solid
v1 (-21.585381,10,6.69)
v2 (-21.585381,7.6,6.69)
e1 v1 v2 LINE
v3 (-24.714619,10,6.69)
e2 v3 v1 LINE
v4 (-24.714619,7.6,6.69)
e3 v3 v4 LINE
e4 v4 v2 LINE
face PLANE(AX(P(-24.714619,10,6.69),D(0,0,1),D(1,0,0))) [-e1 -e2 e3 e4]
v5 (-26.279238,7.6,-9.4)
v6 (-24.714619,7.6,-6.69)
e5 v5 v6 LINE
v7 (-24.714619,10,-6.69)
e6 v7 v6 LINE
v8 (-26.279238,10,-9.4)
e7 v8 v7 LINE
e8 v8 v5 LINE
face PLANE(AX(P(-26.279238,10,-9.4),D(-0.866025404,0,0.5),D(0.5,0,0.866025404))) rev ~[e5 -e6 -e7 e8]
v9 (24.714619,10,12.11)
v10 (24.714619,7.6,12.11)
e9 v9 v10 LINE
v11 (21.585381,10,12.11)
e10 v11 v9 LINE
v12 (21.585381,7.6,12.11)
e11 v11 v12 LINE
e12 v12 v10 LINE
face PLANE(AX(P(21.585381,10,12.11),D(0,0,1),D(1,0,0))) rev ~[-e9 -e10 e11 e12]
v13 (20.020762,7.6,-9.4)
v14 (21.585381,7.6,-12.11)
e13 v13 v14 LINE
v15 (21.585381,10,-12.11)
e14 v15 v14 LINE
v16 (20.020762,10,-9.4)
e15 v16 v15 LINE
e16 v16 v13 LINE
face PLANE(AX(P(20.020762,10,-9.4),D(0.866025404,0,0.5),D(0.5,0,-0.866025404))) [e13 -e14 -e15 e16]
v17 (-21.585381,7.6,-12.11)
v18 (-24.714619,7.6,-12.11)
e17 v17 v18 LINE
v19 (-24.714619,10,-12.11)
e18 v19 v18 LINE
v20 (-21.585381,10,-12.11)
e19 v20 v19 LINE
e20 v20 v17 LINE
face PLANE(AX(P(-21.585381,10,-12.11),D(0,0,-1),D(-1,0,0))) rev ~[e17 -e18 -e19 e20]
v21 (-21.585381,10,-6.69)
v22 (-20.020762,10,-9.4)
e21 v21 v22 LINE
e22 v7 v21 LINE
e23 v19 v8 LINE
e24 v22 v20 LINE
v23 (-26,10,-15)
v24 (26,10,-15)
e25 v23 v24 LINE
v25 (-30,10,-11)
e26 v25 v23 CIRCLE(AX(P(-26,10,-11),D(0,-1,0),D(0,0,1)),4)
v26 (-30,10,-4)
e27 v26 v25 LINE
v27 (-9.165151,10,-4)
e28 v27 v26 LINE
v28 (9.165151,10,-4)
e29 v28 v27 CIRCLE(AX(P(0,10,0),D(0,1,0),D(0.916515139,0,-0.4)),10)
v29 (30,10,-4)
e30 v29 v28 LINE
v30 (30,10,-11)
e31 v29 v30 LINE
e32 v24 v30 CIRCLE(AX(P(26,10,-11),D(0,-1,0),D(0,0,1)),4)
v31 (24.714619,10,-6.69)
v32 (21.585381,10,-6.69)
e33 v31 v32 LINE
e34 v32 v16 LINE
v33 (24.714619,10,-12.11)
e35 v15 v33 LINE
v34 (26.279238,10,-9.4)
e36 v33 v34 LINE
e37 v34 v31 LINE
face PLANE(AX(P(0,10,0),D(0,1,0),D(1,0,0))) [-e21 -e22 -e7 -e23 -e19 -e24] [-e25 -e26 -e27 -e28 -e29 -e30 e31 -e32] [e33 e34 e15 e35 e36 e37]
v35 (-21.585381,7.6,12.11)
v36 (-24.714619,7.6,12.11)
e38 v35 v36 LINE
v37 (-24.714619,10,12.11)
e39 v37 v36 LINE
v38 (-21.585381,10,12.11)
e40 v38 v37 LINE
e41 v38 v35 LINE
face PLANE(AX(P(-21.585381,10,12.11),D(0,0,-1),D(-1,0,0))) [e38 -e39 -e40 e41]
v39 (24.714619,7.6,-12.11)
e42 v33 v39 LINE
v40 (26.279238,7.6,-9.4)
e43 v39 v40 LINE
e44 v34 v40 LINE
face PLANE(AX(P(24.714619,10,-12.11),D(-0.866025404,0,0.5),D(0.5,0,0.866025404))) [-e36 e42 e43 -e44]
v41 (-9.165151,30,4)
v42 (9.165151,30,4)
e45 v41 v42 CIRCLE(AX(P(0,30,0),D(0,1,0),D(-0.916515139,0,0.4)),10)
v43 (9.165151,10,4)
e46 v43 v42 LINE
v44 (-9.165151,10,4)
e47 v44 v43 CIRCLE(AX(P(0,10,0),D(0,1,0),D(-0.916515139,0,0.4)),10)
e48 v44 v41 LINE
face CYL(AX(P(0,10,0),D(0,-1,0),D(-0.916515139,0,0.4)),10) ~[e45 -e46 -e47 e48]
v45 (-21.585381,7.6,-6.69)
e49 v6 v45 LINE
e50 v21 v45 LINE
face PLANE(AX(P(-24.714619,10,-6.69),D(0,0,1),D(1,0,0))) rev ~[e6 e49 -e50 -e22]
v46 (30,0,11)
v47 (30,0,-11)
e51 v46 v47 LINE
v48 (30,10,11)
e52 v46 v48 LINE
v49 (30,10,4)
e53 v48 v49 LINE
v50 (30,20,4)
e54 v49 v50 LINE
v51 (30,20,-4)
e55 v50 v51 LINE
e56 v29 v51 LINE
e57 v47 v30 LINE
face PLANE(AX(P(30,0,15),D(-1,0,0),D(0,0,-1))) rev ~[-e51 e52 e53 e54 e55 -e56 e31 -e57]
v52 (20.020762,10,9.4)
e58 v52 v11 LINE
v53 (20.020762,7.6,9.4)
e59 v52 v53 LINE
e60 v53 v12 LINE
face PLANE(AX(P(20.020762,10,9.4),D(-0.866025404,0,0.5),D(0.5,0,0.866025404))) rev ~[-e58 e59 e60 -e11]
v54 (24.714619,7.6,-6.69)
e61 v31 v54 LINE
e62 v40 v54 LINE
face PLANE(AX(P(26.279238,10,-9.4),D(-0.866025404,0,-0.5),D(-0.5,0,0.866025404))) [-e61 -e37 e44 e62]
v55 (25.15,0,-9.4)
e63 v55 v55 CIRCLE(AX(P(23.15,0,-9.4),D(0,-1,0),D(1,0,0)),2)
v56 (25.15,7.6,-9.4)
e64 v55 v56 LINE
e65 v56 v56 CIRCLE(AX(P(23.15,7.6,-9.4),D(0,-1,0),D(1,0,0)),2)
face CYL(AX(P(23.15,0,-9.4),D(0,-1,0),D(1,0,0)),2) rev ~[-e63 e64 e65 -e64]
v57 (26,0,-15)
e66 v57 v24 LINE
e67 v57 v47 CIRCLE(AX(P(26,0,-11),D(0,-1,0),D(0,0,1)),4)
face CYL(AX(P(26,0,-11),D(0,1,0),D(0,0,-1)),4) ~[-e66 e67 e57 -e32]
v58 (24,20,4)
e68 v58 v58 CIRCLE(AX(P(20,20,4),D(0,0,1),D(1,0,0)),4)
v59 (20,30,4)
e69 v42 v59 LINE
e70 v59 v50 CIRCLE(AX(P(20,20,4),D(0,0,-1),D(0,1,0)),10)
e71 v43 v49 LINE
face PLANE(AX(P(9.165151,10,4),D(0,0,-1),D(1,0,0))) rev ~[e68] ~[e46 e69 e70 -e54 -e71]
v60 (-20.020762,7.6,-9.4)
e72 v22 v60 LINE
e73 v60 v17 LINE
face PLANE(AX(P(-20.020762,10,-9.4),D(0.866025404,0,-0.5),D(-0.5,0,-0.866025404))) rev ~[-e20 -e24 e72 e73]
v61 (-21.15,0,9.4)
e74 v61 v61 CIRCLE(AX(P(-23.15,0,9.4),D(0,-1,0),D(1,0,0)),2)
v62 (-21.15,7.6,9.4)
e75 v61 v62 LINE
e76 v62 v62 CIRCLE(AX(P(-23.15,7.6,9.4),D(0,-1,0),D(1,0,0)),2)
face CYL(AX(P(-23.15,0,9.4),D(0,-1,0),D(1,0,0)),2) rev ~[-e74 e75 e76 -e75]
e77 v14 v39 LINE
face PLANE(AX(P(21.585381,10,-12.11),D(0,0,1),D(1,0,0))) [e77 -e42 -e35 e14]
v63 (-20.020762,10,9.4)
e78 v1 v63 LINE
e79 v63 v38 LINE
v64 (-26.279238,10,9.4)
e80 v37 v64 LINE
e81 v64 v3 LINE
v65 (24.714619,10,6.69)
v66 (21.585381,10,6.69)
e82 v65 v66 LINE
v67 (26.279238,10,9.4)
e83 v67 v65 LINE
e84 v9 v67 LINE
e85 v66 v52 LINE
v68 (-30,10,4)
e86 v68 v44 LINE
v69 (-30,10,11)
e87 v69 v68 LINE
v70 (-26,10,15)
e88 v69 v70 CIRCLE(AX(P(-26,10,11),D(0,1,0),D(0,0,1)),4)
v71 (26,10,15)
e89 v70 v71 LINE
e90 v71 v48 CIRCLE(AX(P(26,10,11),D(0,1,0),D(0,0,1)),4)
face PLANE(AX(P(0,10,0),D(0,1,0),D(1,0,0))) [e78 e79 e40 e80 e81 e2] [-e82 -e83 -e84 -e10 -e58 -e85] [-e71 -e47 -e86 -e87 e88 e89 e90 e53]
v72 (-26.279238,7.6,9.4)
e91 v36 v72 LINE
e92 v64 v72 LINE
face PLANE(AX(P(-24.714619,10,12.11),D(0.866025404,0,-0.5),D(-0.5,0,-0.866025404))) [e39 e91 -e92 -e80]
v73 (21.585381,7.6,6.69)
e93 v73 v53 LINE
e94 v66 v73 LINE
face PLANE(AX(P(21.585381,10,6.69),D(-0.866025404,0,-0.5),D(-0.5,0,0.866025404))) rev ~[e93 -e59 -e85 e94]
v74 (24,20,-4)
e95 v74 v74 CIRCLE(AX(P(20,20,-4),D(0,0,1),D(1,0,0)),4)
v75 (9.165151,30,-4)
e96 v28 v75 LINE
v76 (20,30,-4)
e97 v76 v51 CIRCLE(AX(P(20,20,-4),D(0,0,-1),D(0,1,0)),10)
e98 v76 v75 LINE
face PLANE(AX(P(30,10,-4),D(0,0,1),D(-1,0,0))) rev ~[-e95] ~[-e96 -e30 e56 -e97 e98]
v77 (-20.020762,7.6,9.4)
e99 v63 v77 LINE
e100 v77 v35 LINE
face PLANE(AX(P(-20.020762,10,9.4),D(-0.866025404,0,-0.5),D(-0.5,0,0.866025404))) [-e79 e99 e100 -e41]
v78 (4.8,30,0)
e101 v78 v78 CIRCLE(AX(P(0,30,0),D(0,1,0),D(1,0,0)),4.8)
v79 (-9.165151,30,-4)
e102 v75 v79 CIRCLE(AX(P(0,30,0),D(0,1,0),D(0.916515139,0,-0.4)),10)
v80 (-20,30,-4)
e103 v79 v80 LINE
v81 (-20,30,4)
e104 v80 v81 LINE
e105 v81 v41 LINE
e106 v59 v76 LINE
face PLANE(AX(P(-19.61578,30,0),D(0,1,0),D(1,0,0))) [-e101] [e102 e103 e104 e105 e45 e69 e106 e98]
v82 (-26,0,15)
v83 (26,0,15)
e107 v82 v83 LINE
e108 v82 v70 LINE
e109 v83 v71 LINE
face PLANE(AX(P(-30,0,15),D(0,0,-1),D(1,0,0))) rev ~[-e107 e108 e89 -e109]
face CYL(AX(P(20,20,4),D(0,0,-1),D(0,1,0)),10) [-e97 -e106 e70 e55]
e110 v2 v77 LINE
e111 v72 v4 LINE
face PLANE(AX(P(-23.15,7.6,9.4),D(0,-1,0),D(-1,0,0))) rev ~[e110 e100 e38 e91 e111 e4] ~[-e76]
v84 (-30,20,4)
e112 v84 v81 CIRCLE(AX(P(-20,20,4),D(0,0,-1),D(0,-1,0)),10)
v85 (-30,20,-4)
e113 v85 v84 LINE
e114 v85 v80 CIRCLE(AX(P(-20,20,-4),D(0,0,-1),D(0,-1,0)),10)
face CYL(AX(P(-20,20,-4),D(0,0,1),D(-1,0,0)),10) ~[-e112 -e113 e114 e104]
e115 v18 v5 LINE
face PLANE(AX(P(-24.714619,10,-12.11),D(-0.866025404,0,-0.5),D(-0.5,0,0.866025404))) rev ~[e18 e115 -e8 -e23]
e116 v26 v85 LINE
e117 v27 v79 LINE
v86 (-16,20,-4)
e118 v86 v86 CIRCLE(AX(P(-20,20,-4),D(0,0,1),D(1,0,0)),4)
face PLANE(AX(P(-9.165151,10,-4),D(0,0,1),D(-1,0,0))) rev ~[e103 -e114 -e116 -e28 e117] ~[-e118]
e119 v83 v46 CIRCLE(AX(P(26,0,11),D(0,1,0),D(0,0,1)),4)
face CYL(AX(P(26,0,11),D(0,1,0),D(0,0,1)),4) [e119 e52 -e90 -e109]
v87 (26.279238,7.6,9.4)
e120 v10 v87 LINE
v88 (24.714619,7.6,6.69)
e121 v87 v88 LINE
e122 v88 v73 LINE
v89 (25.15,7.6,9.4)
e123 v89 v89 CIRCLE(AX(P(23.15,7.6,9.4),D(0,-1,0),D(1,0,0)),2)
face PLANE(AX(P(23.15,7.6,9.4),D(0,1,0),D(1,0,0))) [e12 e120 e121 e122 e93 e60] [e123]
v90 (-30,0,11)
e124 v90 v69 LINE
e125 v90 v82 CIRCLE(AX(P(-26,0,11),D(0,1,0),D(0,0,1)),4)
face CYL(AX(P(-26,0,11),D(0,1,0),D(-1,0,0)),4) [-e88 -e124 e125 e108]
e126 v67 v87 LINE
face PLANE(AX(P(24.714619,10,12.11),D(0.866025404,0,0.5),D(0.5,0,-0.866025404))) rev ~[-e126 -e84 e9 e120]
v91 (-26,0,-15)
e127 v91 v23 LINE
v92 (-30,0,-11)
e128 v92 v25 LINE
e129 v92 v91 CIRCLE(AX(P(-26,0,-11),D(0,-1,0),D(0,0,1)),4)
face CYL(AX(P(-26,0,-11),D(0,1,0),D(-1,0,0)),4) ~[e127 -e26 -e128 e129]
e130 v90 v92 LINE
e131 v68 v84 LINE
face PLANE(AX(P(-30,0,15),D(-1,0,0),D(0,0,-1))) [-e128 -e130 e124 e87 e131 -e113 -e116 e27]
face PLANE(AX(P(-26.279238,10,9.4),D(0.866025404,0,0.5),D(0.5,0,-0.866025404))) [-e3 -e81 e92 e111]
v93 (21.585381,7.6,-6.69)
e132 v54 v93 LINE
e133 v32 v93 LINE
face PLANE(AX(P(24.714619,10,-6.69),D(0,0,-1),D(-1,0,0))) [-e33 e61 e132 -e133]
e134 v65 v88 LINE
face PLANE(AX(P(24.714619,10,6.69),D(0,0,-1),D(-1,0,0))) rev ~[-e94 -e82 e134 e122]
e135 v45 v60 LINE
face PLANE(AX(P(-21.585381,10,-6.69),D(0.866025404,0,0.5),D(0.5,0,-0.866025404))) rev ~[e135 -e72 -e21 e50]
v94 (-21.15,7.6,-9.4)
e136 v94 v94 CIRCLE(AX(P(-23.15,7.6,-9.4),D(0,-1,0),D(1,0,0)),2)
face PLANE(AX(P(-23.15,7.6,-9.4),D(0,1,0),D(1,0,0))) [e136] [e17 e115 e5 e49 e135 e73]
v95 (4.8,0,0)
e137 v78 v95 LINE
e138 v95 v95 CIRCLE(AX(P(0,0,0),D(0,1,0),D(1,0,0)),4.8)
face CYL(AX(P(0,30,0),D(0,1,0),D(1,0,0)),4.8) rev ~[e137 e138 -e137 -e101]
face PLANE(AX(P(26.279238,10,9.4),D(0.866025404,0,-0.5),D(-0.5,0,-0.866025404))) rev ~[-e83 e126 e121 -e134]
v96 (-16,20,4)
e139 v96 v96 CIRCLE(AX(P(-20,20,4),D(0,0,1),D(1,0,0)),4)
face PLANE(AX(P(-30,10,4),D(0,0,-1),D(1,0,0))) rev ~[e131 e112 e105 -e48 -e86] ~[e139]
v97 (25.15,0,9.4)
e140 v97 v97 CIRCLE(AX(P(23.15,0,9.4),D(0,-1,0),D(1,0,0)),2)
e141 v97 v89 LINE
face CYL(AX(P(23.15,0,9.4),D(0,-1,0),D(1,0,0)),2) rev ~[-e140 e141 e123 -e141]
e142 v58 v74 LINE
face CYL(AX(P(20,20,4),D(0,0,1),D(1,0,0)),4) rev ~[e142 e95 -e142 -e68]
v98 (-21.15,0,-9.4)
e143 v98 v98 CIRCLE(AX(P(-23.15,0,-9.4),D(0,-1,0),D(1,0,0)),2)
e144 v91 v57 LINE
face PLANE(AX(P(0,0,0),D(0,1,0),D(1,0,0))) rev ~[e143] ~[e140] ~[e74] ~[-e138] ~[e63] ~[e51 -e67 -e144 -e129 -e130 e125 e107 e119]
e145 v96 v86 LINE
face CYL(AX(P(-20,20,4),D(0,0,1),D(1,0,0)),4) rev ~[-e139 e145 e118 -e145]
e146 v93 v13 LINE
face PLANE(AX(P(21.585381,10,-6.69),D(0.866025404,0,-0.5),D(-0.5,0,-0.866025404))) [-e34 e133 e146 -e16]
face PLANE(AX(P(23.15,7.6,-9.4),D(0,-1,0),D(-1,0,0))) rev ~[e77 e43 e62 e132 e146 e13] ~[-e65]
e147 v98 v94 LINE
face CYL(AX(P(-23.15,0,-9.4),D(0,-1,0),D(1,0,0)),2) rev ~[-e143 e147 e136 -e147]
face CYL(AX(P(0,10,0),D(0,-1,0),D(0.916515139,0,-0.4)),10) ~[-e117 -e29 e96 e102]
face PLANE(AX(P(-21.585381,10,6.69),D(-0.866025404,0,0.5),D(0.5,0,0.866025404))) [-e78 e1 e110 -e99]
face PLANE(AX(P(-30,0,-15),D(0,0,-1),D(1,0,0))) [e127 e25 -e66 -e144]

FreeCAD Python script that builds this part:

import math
import FreeCAD as App
import Part
import Sketcher
from FreeCAD import Vector
Q = App.Units.Quantity


def edges_at(feature, points):
    """Names of the edges that pass closest to the given points."""
    edges = feature.Shape.Edges
    near = lambda p: min(range(len(edges)), key=lambda i: edges[i].distToShape(Part.Vertex(*p))[0])
    return sorted({f"Edge{near(p) + 1}" for p in points})


def add_polygon(sketch, points):
    """Adds a closed chain of lines whose ends are joined by coincident constraints."""
    first, n = sketch.GeometryCount, len(points)
    for a, b in zip(points, points[1:] + points[:1]):
        sketch.addGeometry(Part.LineSegment(App.Vector(*a, 0), App.Vector(*b, 0)), False)
    for i in range(n):
        sketch.addConstraint(Sketcher.Constraint("Coincident", first + i, 2, first + (i + 1) % n, 1))

doc = App.newDocument("Part")
body = doc.addObject("PartDesign::Body", "Body")

# Sketch on XZ plane
sketch1 = body.newObject("Sketcher::SketchObject", "Sketch")
sketch1.AttachmentSupport = (doc.getObject("XZ_Plane"), [""])
sketch1.MapMode = "FlatFace"
add_polygon(sketch1, [(-30, -15), (-30, 15), (30, 15), (30, -15)])  # lines 0-3
sketch1.addConstraint([
    Sketcher.Constraint("Vertical", 0),
    Sketcher.Constraint("Horizontal", 1),
    Sketcher.Constraint("Vertical", 2),
    Sketcher.Constraint("Horizontal", 3),
    Sketcher.Constraint("Symmetric", 0, 2, 2, 2, -1, 1),
    Sketcher.Constraint("DistanceX", 1, 1, 1, 2, Q("60 mm")),
    Sketcher.Constraint("DistanceY", 0, 1, 0, 2, Q("30 mm")),
])
pad1 = body.newObject("PartDesign::Pad", "Pad")
pad1.Profile = sketch1
pad1.Length = 10
pad1.Reversed = True

# Sketch on XZ plane
sketch2 = body.newObject("Sketcher::SketchObject", "Sketch001")
sketch2.AttachmentSupport = (doc.getObject("XZ_Plane"), [""])
sketch2.MapMode = "FlatFace"
sketch2.AttachmentOffset = App.Placement(Vector(0, 0, -10), App.Rotation())
sketch2.addGeometry([
    Part.LineSegment(Vector(-9, -4, 0), Vector(-30, -4, 0)),  # 0
    Part.LineSegment(Vector(-30, -4, 0), Vector(-30, 4, 0)),  # 1
    Part.LineSegment(Vector(-30, 4, 0), Vector(-9, 4, 0)),  # 2
    Part.ArcOfCircle(Part.Circle(Vector(0, 0, 0), Vector(0, 0, 1), 10), math.radians(24), math.radians(156)),  # 3
    Part.LineSegment(Vector(9, 4, 0), Vector(30, 4, 0)),  # 4
    Part.LineSegment(Vector(30, 4, 0), Vector(30, -4, 0)),  # 5
    Part.LineSegment(Vector(30, -4, 0), Vector(9, -4, 0)),  # 6
    Part.ArcOfCircle(Part.Circle(Vector(0, 0, 0), Vector(0, 0, 1), 10), math.radians(-156), math.radians(-24)),  # 7
], False)
sketch2.addConstraint([
    Sketcher.Constraint("Coincident", 0, 2, 1, 1),
    Sketcher.Constraint("Coincident", 1, 2, 2, 1),
    Sketcher.Constraint("Coincident", 2, 2, 3, 2),
    Sketcher.Constraint("Coincident", 3, 1, 4, 1),
    Sketcher.Constraint("Coincident", 4, 2, 5, 1),
    Sketcher.Constraint("Coincident", 5, 2, 6, 1),
    Sketcher.Constraint("Coincident", 6, 2, 7, 2),
    Sketcher.Constraint("Coincident", 7, 1, 0, 1),
    Sketcher.Constraint("Horizontal", 0),
    Sketcher.Constraint("Vertical", 1),
    Sketcher.Constraint("Horizontal", 2),
    Sketcher.Constraint("Horizontal", 4),
    Sketcher.Constraint("Vertical", 5),
    Sketcher.Constraint("Horizontal", 6),
    Sketcher.Constraint("Coincident", 3, 3, -1, 1),
    Sketcher.Constraint("Coincident", 7, 3, -1, 1),
    Sketcher.Constraint("Equal", 3, 7),
    Sketcher.Constraint("Symmetric", 0, 2, 4, 2, -1, 1),
    Sketcher.Constraint("Horizontal", 2, 2, 3, 1),
    Sketcher.Constraint("Horizontal", 0, 2, 5, 2),
    Sketcher.Constraint("Radius", 3, Q("10 mm")),
    Sketcher.Constraint("DistanceY", 1, 1, 1, 2, Q("8 mm")),
    Sketcher.Constraint("DistanceX", 0, 2, -1, 1, Q("30 mm")),
])
pad2 = body.newObject("PartDesign::Pad", "Pad001")
pad2.Profile = sketch2
pad2.Length = 20
pad2.Reversed = True

# Sketch on XY plane
sketch3 = body.newObject("Sketcher::SketchObject", "Sketch002")
sketch3.AttachmentSupport = (doc.getObject("XY_Plane"), [""])
sketch3.MapMode = "FlatFace"
sketch3.AttachmentOffset = App.Placement(Vector(0, 0, 4), App.Rotation())
sketch3.addGeometry([
    Part.Circle(Vector(-20, 20, 0), Vector(0, 0, 1), 4),
    Part.Circle(Vector(20, 20, 0), Vector(0, 0, 1), 4),
], False)
sketch3.addConstraint([
    Sketcher.Constraint("Equal", 0, 1),
    Sketcher.Constraint("Symmetric", 0, 3, 1, 3, -2),
    Sketcher.Constraint("Diameter", 0, Q("8 mm")),
    Sketcher.Constraint("DistanceX", 0, 3, -1, 1, Q("20 mm")),
    Sketcher.Constraint("DistanceY", -1, 1, 0, 3, Q("20 mm")),
])
pocket1 = body.newObject("PartDesign::Pocket", "Pocket")
pocket1.Profile = sketch3
pocket1.Type = "ThroughAll"

# Sketch on XZ plane
sketch4 = body.newObject("Sketcher::SketchObject", "Sketch003")
sketch4.AttachmentSupport = (doc.getObject("XZ_Plane"), [""])
sketch4.MapMode = "FlatFace"
sketch4.AttachmentOffset = App.Placement(Vector(0, 0, -30), App.Rotation())
sketch4.addGeometry(Part.Circle(Vector(0, 0, 0), Vector(0, 0, 1), 4.8), False)
sketch4.addConstraint([
    Sketcher.Constraint("Coincident", 0, 3, -1, 1),
    Sketcher.Constraint("Diameter", 0, Q("9.6 mm")),
])
pocket2 = body.newObject("PartDesign::Pocket", "Pocket001")
pocket2.Profile = sketch4
pocket2.Type = "ThroughAll"
pocket2.Reversed = True
doc.recompute()

fillet = body.newObject("PartDesign::Fillet", "Fillet")
fillet.Base = (pocket2, edges_at(pocket2, [(30, 30, 0), (-30, 30, 0)]))
fillet.Radius = 10
doc.recompute()

fillet2 = body.newObject("PartDesign::Fillet", "Fillet001")
fillet2.Base = (fillet, edges_at(fillet, [
    (-30, 5, -15),
    (30, 5, -15),
    (30, 5, 15),
    (-30, 5, 15),
]))
fillet2.Radius = 4

# Sketch on XZ plane
sketch5 = body.newObject("Sketcher::SketchObject", "Sketch004")
sketch5.AttachmentSupport = (doc.getObject("XZ_Plane"), [""])
sketch5.MapMode = "FlatFace"
sketch5.addGeometry([
    Part.Circle(Vector(-23.1, 9.4, 0), Vector(0, 0, 1), 2),
    Part.Circle(Vector(23.1, 9.4, 0), Vector(0, 0, 1), 2),
    Part.Circle(Vector(23.1, -9.4, 0), Vector(0, 0, 1), 2),
    Part.Circle(Vector(-23.1, -9.4, 0), Vector(0, 0, 1), 2),
], False)
sketch5.addConstraint([
    Sketcher.Constraint("Equal", 0, 1),
    Sketcher.Constraint("Equal", 1, 2),
    Sketcher.Constraint("Equal", 2, 3),
    Sketcher.Constraint("Symmetric", 0, 3, 2, 3, -1, 1),
    Sketcher.Constraint("Symmetric", 1, 3, 3, 3, -1, 1),
    Sketcher.Constraint("Symmetric", 0, 3, 1, 3, -2),
    Sketcher.Constraint("Diameter", 0, Q("4 mm")),
    Sketcher.Constraint("DistanceY", -1, 1, 0, 3, Q("9.4 mm")),
    Sketcher.Constraint("DistanceX", 0, 3, 1, 3, Q("46.3 mm")),
])
pocket3 = body.newObject("PartDesign::Pocket", "Pocket002")
pocket3.Profile = sketch5
pocket3.Type = "ThroughAll"

# Sketch on XZ plane
sketch6 = body.newObject("Sketcher::SketchObject", "Sketch005")
sketch6.AttachmentSupport = (doc.getObject("XZ_Plane"), [""])
sketch6.MapMode = "FlatFace"
sketch6.AttachmentOffset = App.Placement(Vector(0, 0, -10), App.Rotation())
add_polygon(sketch6, [(-21.6, -12.1), (-24.7, -12.1), (-26.3, -9.4), (-24.7, -6.7), (-21.6, -6.7), (-20, -9.4)])  # lines 0-5
add_polygon(sketch6, [(21.6, -12.1), (20, -9.4), (21.6, -6.7), (24.7, -6.7), (26.3, -9.4), (24.7, -12.1)])  # lines 6-11
add_polygon(sketch6, [(21.6, 12.1), (24.7, 12.1), (26.3, 9.4), (24.7, 6.7), (21.6, 6.7), (20, 9.4)])  # lines 12-17
add_polygon(sketch6, [(-21.6, 12.1), (-20, 9.4), (-21.6, 6.7), (-24.7, 6.7), (-26.3, 9.4), (-24.7, 12.1)])  # lines 18-23
sketch6.addConstraint([
    Sketcher.Constraint("Horizontal", 0),
    Sketcher.Constraint("Horizontal", 3),
    Sketcher.Constraint("Horizontal", 8),
    Sketcher.Constraint("Horizontal", 11),
    Sketcher.Constraint("Horizontal", 12),
    Sketcher.Constraint("Horizontal", 15),
    Sketcher.Constraint("Horizontal", 20),
    Sketcher.Constraint("Horizontal", 23),
    Sketcher.Constraint("Symmetric", 0, 2, 12, 2, -1, 1),
    Sketcher.Constraint("Symmetric", 1, 2, 13, 2, -1, 1),
    Sketcher.Constraint("Symmetric", 2, 2, 14, 2, -1, 1),
    Sketcher.Constraint("Symmetric", 4, 2, 16, 2, -1, 1),
    Sketcher.Constraint("Symmetric", 6, 2, 18, 2, -1, 1),
    Sketcher.Constraint("Symmetric", 7, 2, 19, 2, -1, 1),
    Sketcher.Constraint("Symmetric", 9, 2, 21, 2, -1, 1),
    Sketcher.Constraint("Symmetric", 10, 2, 22, 2, -1, 1),
    Sketcher.Constraint("Symmetric", 4, 2, 6, 2, -2),
    Sketcher.Constraint("Symmetric", 3, 2, 7, 2, -2),
    Sketcher.Constraint("Symmetric", 1, 2, 9, 2, -2),
    Sketcher.Constraint("Symmetric", 0, 2, 10, 2, -2),
    Sketcher.Constraint("Parallel", 1, 4),
    Sketcher.Constraint("Parallel", 2, 5),
    Sketcher.Constraint("Parallel", 4, 6),
    Sketcher.Constraint("Parallel", 5, 7),
    Sketcher.Constraint("Parallel", 6, 9),
    Sketcher.Constraint("Parallel", 13, 16),
    Sketcher.Constraint("Parallel", 14, 17),
    Sketcher.Constraint("Parallel", 16, 18),
    Sketcher.Constraint("Parallel", 18, 21),
    Sketcher.Constraint("Horizontal", 1, 2, 4, 2),
    Sketcher.Constraint("Vertical", 0, 2, 2, 2),
    Sketcher.Constraint("Angle", 1, Q("120 deg")),
    Sketcher.Constraint("DistanceY", 1, 2, -1, 1, Q("9.4 mm")),
    Sketcher.Constraint("DistanceX", 2, 2, 7, 2, Q("46.3 mm")),
    Sketcher.Constraint("DistanceY", 0, 2, -1, 1, Q("12.11 mm")),
    Sketcher.Constraint("DistanceX", 0, 2, 0, 1, Q("3.129238 mm")),
])
pocket4 = body.newObject("PartDesign::Pocket", "Pocket003")
pocket4.Profile = sketch6
pocket4.Length = 2.4
pocket4.Reversed = True

doc.recompute()
